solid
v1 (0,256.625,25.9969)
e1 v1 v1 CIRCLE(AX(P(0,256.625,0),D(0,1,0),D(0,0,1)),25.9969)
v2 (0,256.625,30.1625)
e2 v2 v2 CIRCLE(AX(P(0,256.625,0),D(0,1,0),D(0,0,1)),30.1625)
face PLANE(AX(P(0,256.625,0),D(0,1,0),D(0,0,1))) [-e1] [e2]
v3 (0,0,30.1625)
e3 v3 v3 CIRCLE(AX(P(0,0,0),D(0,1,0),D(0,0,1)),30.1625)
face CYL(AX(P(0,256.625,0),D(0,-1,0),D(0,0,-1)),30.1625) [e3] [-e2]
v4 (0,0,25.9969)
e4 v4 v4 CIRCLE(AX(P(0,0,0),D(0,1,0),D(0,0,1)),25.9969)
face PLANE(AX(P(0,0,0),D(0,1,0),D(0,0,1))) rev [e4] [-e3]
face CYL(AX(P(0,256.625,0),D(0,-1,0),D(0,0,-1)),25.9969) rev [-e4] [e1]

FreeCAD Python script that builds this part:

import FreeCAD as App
import Part
import Sketcher
Q = App.Units.Quantity

doc = App.newDocument("Part")
body = doc.addObject("PartDesign::Body", "Body")

# Sketch on XZ plane
sketch1 = body.newObject("Sketcher::SketchObject", "Sketch")
sketch1.AttachmentSupport = (doc.getObject("XZ_Plane"), [""])
sketch1.MapMode = "FlatFace"
sketch1.addGeometry(Part.Circle(App.Vector(0, 0, 0), App.Vector(0, 0, 1), 30.1625), False)
sketch1.addGeometry(Part.Circle(App.Vector(0, 0, 0), App.Vector(0, 0, 1), 25.9969), False)
sketch1.addConstraint(Sketcher.Constraint("Coincident", 0, 3, -1, 1))
sketch1.addConstraint(Sketcher.Constraint("Coincident", 1, 3, -1, 1))
sketch1.addConstraint(Sketcher.Constraint("Diameter", 0, Q("2.375 in")))
sketch1.addConstraint(Sketcher.Constraint("Diameter", 1, Q("2.047 in")))
pad1 = body.newObject("PartDesign::Pad", "Pad")
pad1.Profile = sketch1
pad1.Length = 256.625
pad1.Reversed = True

doc.recompute()
